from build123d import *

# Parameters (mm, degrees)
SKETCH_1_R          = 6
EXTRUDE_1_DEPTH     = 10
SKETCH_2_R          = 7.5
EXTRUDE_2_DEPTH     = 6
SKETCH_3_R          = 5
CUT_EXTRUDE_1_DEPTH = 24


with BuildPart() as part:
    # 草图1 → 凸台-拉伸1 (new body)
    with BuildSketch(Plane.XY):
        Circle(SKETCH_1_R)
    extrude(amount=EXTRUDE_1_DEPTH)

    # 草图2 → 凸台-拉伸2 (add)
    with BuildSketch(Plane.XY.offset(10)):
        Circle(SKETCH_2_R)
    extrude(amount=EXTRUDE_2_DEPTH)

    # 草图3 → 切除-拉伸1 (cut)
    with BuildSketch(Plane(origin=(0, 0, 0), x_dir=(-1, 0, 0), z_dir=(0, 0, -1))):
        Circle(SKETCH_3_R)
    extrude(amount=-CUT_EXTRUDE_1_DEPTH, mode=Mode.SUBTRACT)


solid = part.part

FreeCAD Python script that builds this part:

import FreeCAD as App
import Part
import Sketcher

V = App.Vector

doc = App.newDocument("Part")
params = doc.addObject("Spreadsheet::Sheet", "Params")
for row, (alias, value) in enumerate([
    ("sketch1_diameter", "12 mm"),
    ("pad1_length", "10 mm"),
    ("sketch2_diameter", "15 mm"),
    ("pad2_length", "6 mm"),
    ("sketch3_diameter", "10 mm"),
    ("pocket1_length", "24 mm"),
], start=1):
    params.set(f"A{row}", alias)
    params.set(f"B{row}", "=" + value)
    params.setAlias(f"B{row}", alias)

body = doc.addObject("PartDesign::Body", "Body")

sketch1 = doc.addObject("Sketcher::SketchObject", "Sketch")
body.addObject(sketch1)
sketch1.AttachmentSupport = (doc.XY_Plane, [""])
sketch1.MapMode = "FlatFace"
sketch1.addGeometry(Part.Circle(V(0, 0, 0), V(0, 0, 1), 6), False)
sketch1.addConstraint([
    Sketcher.Constraint("Coincident", 0, 3, -1, 1),
    Sketcher.Constraint("Diameter", 0, 12.0),
])
sketch1.setExpression("Constraints[1]", "Params.sketch1_diameter")
pad1 = doc.addObject("PartDesign::Pad", "Pad")
body.addObject(pad1)
pad1.Profile = sketch1
pad1.setExpression("Length", "Params.pad1_length")

sketch2 = doc.addObject("Sketcher::SketchObject", "Sketch001")
body.addObject(sketch2)
sketch2.AttachmentSupport = (doc.XY_Plane, [""])
sketch2.MapMode = "FlatFace"
sketch2.AttachmentOffset = App.Placement(V(0, 0, 10), App.Rotation())
sketch2.addGeometry(Part.Circle(V(0, 0, 0), V(0, 0, 1), 7.5), False)
sketch2.addConstraint([
    Sketcher.Constraint("Coincident", 0, 3, -1, 1),
    Sketcher.Constraint("Diameter", 0, 15.0),
])
sketch2.setExpression("Constraints[1]", "Params.sketch2_diameter")
pad2 = doc.addObject("PartDesign::Pad", "Pad001")
body.addObject(pad2)
pad2.Profile = sketch2
pad2.setExpression("Length", "Params.pad2_length")

sketch3 = doc.addObject("Sketcher::SketchObject", "Sketch002")
body.addObject(sketch3)
sketch3.AttachmentSupport = (doc.XY_Plane, [""])
sketch3.MapMode = "FlatFace"
sketch3.addGeometry(Part.Circle(V(0, 0, 0), V(0, 0, 1), 5), False)
sketch3.addConstraint([
    Sketcher.Constraint("Coincident", 0, 3, -1, 1),
    Sketcher.Constraint("Diameter", 0, 10.0),
])
sketch3.setExpression("Constraints[1]", "Params.sketch3_diameter")
pocket1 = doc.addObject("PartDesign::Pocket", "Pocket")
body.addObject(pocket1)
pocket1.Profile = sketch3
pocket1.setExpression("Length", "Params.pocket1_length")
pocket1.Reversed = True

doc.recompute()
